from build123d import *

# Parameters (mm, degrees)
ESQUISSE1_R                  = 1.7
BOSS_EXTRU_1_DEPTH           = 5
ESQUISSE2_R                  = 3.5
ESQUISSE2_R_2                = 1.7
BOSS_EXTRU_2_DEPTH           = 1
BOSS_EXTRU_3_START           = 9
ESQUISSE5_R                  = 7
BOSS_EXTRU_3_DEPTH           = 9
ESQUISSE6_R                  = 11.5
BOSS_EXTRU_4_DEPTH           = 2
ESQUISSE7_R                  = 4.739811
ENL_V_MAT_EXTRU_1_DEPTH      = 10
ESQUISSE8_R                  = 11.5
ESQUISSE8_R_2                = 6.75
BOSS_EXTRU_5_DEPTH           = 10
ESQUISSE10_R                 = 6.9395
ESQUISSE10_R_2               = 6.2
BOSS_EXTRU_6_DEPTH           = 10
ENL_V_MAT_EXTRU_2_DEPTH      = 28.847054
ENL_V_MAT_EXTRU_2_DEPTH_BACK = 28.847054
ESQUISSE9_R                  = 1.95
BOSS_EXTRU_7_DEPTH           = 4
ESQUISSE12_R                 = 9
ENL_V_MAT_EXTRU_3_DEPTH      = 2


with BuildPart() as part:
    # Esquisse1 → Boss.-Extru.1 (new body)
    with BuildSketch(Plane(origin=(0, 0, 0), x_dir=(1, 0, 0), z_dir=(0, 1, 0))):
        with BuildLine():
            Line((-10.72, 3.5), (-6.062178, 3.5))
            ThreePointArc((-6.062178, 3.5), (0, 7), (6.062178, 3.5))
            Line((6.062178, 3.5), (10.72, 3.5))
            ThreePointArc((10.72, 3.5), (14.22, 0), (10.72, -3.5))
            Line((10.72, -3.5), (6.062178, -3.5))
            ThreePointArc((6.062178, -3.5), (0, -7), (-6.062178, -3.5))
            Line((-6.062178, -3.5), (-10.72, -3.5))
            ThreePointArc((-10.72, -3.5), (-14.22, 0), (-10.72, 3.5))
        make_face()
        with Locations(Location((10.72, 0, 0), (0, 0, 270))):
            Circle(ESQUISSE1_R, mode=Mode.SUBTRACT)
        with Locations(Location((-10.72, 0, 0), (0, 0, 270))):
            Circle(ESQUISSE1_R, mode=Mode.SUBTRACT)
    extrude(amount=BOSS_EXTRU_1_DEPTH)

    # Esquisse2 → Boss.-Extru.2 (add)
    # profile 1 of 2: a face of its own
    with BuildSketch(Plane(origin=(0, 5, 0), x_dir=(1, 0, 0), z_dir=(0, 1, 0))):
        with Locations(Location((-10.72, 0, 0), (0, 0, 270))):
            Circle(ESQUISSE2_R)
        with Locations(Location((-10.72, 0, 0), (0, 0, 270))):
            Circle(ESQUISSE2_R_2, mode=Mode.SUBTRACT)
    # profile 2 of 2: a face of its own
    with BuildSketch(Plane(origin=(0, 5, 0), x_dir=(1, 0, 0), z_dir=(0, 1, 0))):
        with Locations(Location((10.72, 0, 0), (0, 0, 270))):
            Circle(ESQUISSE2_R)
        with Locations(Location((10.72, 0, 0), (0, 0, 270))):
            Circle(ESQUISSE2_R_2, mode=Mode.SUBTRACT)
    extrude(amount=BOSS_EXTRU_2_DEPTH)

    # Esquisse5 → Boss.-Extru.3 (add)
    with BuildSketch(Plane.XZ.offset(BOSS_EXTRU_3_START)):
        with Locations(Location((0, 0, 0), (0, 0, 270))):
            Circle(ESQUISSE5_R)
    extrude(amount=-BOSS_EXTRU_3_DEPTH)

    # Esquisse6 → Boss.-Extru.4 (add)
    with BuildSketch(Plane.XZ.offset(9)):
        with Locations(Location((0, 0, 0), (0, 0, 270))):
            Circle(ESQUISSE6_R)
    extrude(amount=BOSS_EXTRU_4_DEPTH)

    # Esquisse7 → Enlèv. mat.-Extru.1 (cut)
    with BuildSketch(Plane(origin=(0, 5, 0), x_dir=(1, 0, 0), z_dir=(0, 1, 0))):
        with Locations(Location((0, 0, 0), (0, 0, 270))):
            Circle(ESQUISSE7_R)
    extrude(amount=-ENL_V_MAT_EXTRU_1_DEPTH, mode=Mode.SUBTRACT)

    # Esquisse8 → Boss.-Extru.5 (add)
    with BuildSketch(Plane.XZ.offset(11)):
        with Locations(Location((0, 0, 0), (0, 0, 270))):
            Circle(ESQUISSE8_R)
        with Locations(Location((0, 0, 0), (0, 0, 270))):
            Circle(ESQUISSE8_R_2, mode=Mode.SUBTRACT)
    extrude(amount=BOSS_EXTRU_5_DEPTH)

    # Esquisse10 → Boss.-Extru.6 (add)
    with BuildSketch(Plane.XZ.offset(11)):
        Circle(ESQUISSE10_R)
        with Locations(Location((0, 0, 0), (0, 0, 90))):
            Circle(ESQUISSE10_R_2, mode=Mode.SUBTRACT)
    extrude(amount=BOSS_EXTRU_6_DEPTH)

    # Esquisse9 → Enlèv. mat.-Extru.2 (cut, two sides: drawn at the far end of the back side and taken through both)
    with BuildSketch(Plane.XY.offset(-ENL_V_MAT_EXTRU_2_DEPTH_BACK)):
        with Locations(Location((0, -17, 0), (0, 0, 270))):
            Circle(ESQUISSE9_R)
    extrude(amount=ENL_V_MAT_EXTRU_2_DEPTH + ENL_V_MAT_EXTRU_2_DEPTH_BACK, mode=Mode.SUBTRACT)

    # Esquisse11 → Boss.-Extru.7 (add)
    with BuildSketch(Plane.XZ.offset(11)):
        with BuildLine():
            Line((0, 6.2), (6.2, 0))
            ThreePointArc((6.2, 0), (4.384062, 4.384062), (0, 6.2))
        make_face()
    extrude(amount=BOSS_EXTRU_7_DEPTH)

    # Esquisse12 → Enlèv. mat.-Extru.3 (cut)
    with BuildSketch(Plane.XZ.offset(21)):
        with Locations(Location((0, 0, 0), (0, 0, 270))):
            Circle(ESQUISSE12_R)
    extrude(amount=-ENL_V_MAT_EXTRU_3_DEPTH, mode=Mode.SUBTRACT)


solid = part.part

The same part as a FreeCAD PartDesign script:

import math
import FreeCAD as App
import Part
import Sketcher

doc = App.newDocument("Part")
params = doc.addObject("Spreadsheet::Sheet", "Params")
for row, (alias, value) in enumerate([
    ("sketch1_radius", "7 mm"),
    ("sketch1_diameter", "3.4 mm"),
    ("sketch1_radius2", "3.5 mm"),
    ("pad1_length", "5 mm"),
    ("sketch2_diameter", "7 mm"),
    ("sketch2_diameter2", "3.4 mm"),
    ("pad2_length", "1 mm"),
    ("sketch3_diameter", "14 mm"),
    ("pad3_length", "9 mm"),
    ("sketch4_diameter", "23 mm"),
    ("pad4_length", "2 mm"),
    ("pocket1_length", "10 mm"),
    ("sketch6_diameter", "23 mm"),
    ("sketch6_diameter2", "13.5 mm"),
    ("pad5_length", "10 mm"),
    ("sketch7_diameter", "12.4 mm"),
    ("pad6_length", "10 mm"),
    ("sketch8_diameter", "3.9 mm"),
    ("sketch9_radius", "6.2 mm"),
    ("pad7_length", "4 mm"),
    ("sketch10_diameter", "18 mm"),
    ("pocket3_length", "2 mm"),
], start=1):
    params.set(f"A{row}", alias)
    params.set(f"B{row}", "=" + value)
    params.setAlias(f"B{row}", alias)

body = doc.addObject("PartDesign::Body", "Body")

# Sketch on XZ plane
sketch1 = doc.addObject("Sketcher::SketchObject", "Sketch")
body.addObject(sketch1)
sketch1.AttachmentSupport = (doc.XZ_Plane, [""])
sketch1.MapMode = "FlatFace"
sketch1.addGeometry([
    Part.LineSegment(App.Vector(-6.1, -3.5, 0), App.Vector(-10.7, -3.5, 0)),  # 0
    Part.ArcOfCircle(Part.Circle(App.Vector(-10.7, 0, 0), App.Vector(0, 0, 1), 3.5), math.radians(90), math.radians(270)),  # 1
    Part.LineSegment(App.Vector(-10.7, 3.5, 0), App.Vector(-6.1, 3.5, 0)),  # 2
    Part.ArcOfCircle(Part.Circle(App.Vector(0, 0, 0), App.Vector(0, 0, 1), 7), math.radians(30), math.radians(150)),  # 3
    Part.LineSegment(App.Vector(6.1, 3.5, 0), App.Vector(10.7, 3.5, 0)),  # 4
    Part.ArcOfCircle(Part.Circle(App.Vector(10.7, 0, 0), App.Vector(0, 0, 1), 3.5), math.radians(-90), math.radians(90)),  # 5
    Part.LineSegment(App.Vector(10.7, -3.5, 0), App.Vector(6.1, -3.5, 0)),  # 6
    Part.ArcOfCircle(Part.Circle(App.Vector(0, 0, 0), App.Vector(0, 0, 1), 7), math.radians(-150), math.radians(-30)),  # 7
    Part.Circle(App.Vector(10.7, 0, 0), App.Vector(0, 0, 1), 1.7),  # 8
    Part.Circle(App.Vector(-10.7, 0, 0), App.Vector(0, 0, 1), 1.7),  # 9
], False)
sketch1.addConstraint([
    Sketcher.Constraint("Tangent", 0, 2, 1, 2),
    Sketcher.Constraint("Tangent", 1, 1, 2, 1),
    Sketcher.Constraint("Coincident", 2, 2, 3, 2),
    Sketcher.Constraint("Coincident", 3, 1, 4, 1),
    Sketcher.Constraint("Tangent", 4, 2, 5, 2),
    Sketcher.Constraint("Tangent", 5, 1, 6, 1),
    Sketcher.Constraint("Coincident", 6, 2, 7, 2),
    Sketcher.Constraint("Coincident", 7, 1, 0, 1),
    Sketcher.Constraint("Horizontal", 0),
    Sketcher.Constraint("Horizontal", 2),
    Sketcher.Constraint("Horizontal", 4),
    Sketcher.Constraint("Horizontal", 6),
    Sketcher.Constraint("Coincident", 3, 3, -1, 1),
    Sketcher.Constraint("Coincident", 7, 3, -1, 1),
    Sketcher.Constraint("Coincident", 8, 3, 5, 3),
    Sketcher.Constraint("Coincident", 9, 3, 1, 3),
    Sketcher.Constraint("Equal", 1, 5),
    Sketcher.Constraint("Equal", 3, 7),
    Sketcher.Constraint("Equal", 8, 9),
    Sketcher.Constraint("Symmetric", 1, 3, 5, 3, -1, 1),
    Sketcher.Constraint("PointOnObject", 1, 3, -1),
    Sketcher.Constraint("Radius", 3, 7.0),
    Sketcher.Constraint("Diameter", 8, 3.4),
    Sketcher.Constraint("Radius", 1, 3.5),
    Sketcher.Constraint("DistanceX", 1, 3, -1, 1, 10.72),
])
sketch1.setExpression("Constraints[21]", "Params.sketch1_radius")
sketch1.setExpression("Constraints[22]", "Params.sketch1_diameter")
sketch1.setExpression("Constraints[23]", "Params.sketch1_radius2")
pad1 = doc.addObject("PartDesign::Pad", "Pad")
body.addObject(pad1)
pad1.Profile = sketch1
pad1.setExpression("Length", "Params.pad1_length")
pad1.Reversed = True

# Sketch on XZ plane
sketch2 = doc.addObject("Sketcher::SketchObject", "Sketch001")
body.addObject(sketch2)
sketch2.AttachmentSupport = (doc.XZ_Plane, [""])
sketch2.MapMode = "FlatFace"
sketch2.AttachmentOffset = App.Placement(App.Vector(0, 0, -5), App.Rotation())
sketch2.addGeometry([
    Part.Circle(App.Vector(-10.7, 0, 0), App.Vector(0, 0, 1), 3.5),
    Part.Circle(App.Vector(-10.7, 0, 0), App.Vector(0, 0, 1), 1.7),
    Part.Circle(App.Vector(10.7, 0, 0), App.Vector(0, 0, 1), 3.5),
    Part.Circle(App.Vector(10.7, 0, 0), App.Vector(0, 0, 1), 1.7),
], False)
sketch2.addConstraint([
    Sketcher.Constraint("Coincident", 1, 3, 0, 3),
    Sketcher.Constraint("Coincident", 3, 3, 2, 3),
    Sketcher.Constraint("Equal", 0, 2),
    Sketcher.Constraint("Equal", 1, 3),
    Sketcher.Constraint("Symmetric", 0, 3, 2, 3, -1, 1),
    Sketcher.Constraint("PointOnObject", 0, 3, -1),
    Sketcher.Constraint("Diameter", 0, 7.0),
    Sketcher.Constraint("Diameter", 1, 3.4),
    Sketcher.Constraint("DistanceX", 0, 3, -1, 1, 10.72),
])
sketch2.setExpression("Constraints[6]", "Params.sketch2_diameter")
sketch2.setExpression("Constraints[7]", "Params.sketch2_diameter2")
pad2 = doc.addObject("PartDesign::Pad", "Pad001")
body.addObject(pad2)
pad2.Profile = sketch2
pad2.setExpression("Length", "Params.pad2_length")
pad2.Reversed = True

# Sketch on XZ plane
sketch3 = doc.addObject("Sketcher::SketchObject", "Sketch002")
body.addObject(sketch3)
sketch3.AttachmentSupport = (doc.XZ_Plane, [""])
sketch3.MapMode = "FlatFace"
sketch3.AttachmentOffset = App.Placement(App.Vector(0, 0, 9), App.Rotation())
sketch3.addGeometry(Part.Circle(App.Vector(0, 0, 0), App.Vector(0, 0, 1), 7), False)
sketch3.addConstraint([
    Sketcher.Constraint("Coincident", 0, 3, -1, 1),
    Sketcher.Constraint("Diameter", 0, 14.0),
])
sketch3.setExpression("Constraints[1]", "Params.sketch3_diameter")
pad3 = doc.addObject("PartDesign::Pad", "Pad002")
body.addObject(pad3)
pad3.Profile = sketch3
pad3.setExpression("Length", "Params.pad3_length")
pad3.Reversed = True

# Sketch on XZ plane
sketch4 = doc.addObject("Sketcher::SketchObject", "Sketch003")
body.addObject(sketch4)
sketch4.AttachmentSupport = (doc.XZ_Plane, [""])
sketch4.MapMode = "FlatFace"
sketch4.AttachmentOffset = App.Placement(App.Vector(0, 0, 9), App.Rotation())
sketch4.addGeometry(Part.Circle(App.Vector(0, 0, 0), App.Vector(0, 0, 1), 12), False)
sketch4.addConstraint([
    Sketcher.Constraint("Coincident", 0, 3, -1, 1),
    Sketcher.Constraint("Diameter", 0, 23.0),
])
sketch4.setExpression("Constraints[1]", "Params.sketch4_diameter")
pad4 = doc.addObject("PartDesign::Pad", "Pad003")
body.addObject(pad4)
pad4.Profile = sketch4
pad4.setExpression("Length", "Params.pad4_length")

# Sketch on XZ plane
sketch5 = doc.addObject("Sketcher::SketchObject", "Sketch004")
body.addObject(sketch5)
sketch5.AttachmentSupport = (doc.XZ_Plane, [""])
sketch5.MapMode = "FlatFace"
sketch5.AttachmentOffset = App.Placement(App.Vector(0, 0, -5), App.Rotation())
sketch5.addGeometry(Part.Circle(App.Vector(0, 0, 0), App.Vector(0, 0, 1), 4.7), False)
sketch5.addConstraint([
    Sketcher.Constraint("Coincident", 0, 3, -1, 1),
    Sketcher.Constraint("Diameter", 0, 9.479622),
])
pocket1 = doc.addObject("PartDesign::Pocket", "Pocket")
body.addObject(pocket1)
pocket1.Profile = sketch5
pocket1.setExpression("Length", "Params.pocket1_length")
pocket1.Reversed = True

# Sketch on XZ plane
sketch6 = doc.addObject("Sketcher::SketchObject", "Sketch005")
body.addObject(sketch6)
sketch6.AttachmentSupport = (doc.XZ_Plane, [""])
sketch6.MapMode = "FlatFace"
sketch6.AttachmentOffset = App.Placement(App.Vector(0, 0, 11), App.Rotation())
sketch6.addGeometry([
    Part.Circle(App.Vector(0, 0, 0), App.Vector(0, 0, 1), 12),
    Part.Circle(App.Vector(0, 0, 0), App.Vector(0, 0, 1), 7),
], False)
sketch6.addConstraint([
    Sketcher.Constraint("Coincident", 0, 3, -1, 1),
    Sketcher.Constraint("Coincident", 1, 3, -1, 1),
    Sketcher.Constraint("Diameter", 0, 23.0),
    Sketcher.Constraint("Diameter", 1, 13.5),
])
sketch6.setExpression("Constraints[2]", "Params.sketch6_diameter")
sketch6.setExpression("Constraints[3]", "Params.sketch6_diameter2")
pad5 = doc.addObject("PartDesign::Pad", "Pad004")
body.addObject(pad5)
pad5.Profile = sketch6
pad5.setExpression("Length", "Params.pad5_length")

# Sketch on XZ plane
sketch7 = doc.addObject("Sketcher::SketchObject", "Sketch006")
body.addObject(sketch7)
sketch7.AttachmentSupport = (doc.XZ_Plane, [""])
sketch7.MapMode = "FlatFace"
sketch7.AttachmentOffset = App.Placement(App.Vector(0, 0, 11), App.Rotation())
sketch7.addGeometry([
    Part.Circle(App.Vector(0, 0, 0), App.Vector(0, 0, 1), 7),
    Part.Circle(App.Vector(0, 0, 0), App.Vector(0, 0, 1), 6),
], False)
sketch7.addConstraint([
    Sketcher.Constraint("Coincident", 0, 3, -1, 1),
    Sketcher.Constraint("Coincident", 1, 3, -1, 1),
    Sketcher.Constraint("Diameter", 1, 12.4),
    Sketcher.Constraint("Diameter", 0, 13.879),
])
sketch7.setExpression("Constraints[2]", "Params.sketch7_diameter")
pad6 = doc.addObject("PartDesign::Pad", "Pad005")
body.addObject(pad6)
pad6.Profile = sketch7
pad6.setExpression("Length", "Params.pad6_length")

# Sketch on XY plane
sketch8 = doc.addObject("Sketcher::SketchObject", "Sketch007")
body.addObject(sketch8)
sketch8.AttachmentSupport = (doc.XY_Plane, [""])
sketch8.MapMode = "FlatFace"
sketch8.addGeometry(Part.Circle(App.Vector(0, -17, 0), App.Vector(0, 0, 1), 1.9), False)
sketch8.addConstraint([
    Sketcher.Constraint("PointOnObject", 0, 3, -2),
    Sketcher.Constraint("Diameter", 0, 3.9),
    Sketcher.Constraint("DistanceY", 0, 3, -1, 1, 17.0),
])
sketch8.setExpression("Constraints[1]", "Params.sketch8_diameter")
pocket2 = doc.addObject("PartDesign::Pocket", "Pocket001")
body.addObject(pocket2)
pocket2.Profile = sketch8
pocket2.Type = "ThroughAll"
pocket2.Midplane = True

# Sketch on XZ plane
sketch9 = doc.addObject("Sketcher::SketchObject", "Sketch008")
body.addObject(sketch9)
sketch9.AttachmentSupport = (doc.XZ_Plane, [""])
sketch9.MapMode = "FlatFace"
sketch9.AttachmentOffset = App.Placement(App.Vector(0, 0, 11), App.Rotation())
sketch9.addGeometry([
    Part.LineSegment(App.Vector(0, 6, 0), App.Vector(6, 0, 0)),
    Part.ArcOfCircle(Part.Circle(App.Vector(0, 0, 0), App.Vector(0, 0, 1), 6), math.radians(0), math.radians(90)),
], False)
sketch9.addConstraint([
    Sketcher.Constraint("Coincident", 0, 1, 1, 2),
    Sketcher.Constraint("Coincident", 1, 1, 0, 2),
    Sketcher.Constraint("Coincident", 1, 3, -1, 1),
    Sketcher.Constraint("PointOnObject", 0, 1, -2),
    Sketcher.Constraint("PointOnObject", 1, 1, -1),
    Sketcher.Constraint("Radius", 1, 6.2),
])
sketch9.setExpression("Constraints[5]", "Params.sketch9_radius")
pad7 = doc.addObject("PartDesign::Pad", "Pad006")
body.addObject(pad7)
pad7.Profile = sketch9
pad7.setExpression("Length", "Params.pad7_length")

# Sketch on XZ plane
sketch10 = doc.addObject("Sketcher::SketchObject", "Sketch009")
body.addObject(sketch10)
sketch10.AttachmentSupport = (doc.XZ_Plane, [""])
sketch10.MapMode = "FlatFace"
sketch10.AttachmentOffset = App.Placement(App.Vector(0, 0, 21), App.Rotation())
sketch10.addGeometry(Part.Circle(App.Vector(0, 0, 0), App.Vector(0, 0, 1), 9), False)
sketch10.addConstraint([
    Sketcher.Constraint("Coincident", 0, 3, -1, 1),
    Sketcher.Constraint("Diameter", 0, 18.0),
])
sketch10.setExpression("Constraints[1]", "Params.sketch10_diameter")
pocket3 = doc.addObject("PartDesign::Pocket", "Pocket002")
body.addObject(pocket3)
pocket3.Profile = sketch10
pocket3.setExpression("Length", "Params.pocket3_length")

doc.recompute()
